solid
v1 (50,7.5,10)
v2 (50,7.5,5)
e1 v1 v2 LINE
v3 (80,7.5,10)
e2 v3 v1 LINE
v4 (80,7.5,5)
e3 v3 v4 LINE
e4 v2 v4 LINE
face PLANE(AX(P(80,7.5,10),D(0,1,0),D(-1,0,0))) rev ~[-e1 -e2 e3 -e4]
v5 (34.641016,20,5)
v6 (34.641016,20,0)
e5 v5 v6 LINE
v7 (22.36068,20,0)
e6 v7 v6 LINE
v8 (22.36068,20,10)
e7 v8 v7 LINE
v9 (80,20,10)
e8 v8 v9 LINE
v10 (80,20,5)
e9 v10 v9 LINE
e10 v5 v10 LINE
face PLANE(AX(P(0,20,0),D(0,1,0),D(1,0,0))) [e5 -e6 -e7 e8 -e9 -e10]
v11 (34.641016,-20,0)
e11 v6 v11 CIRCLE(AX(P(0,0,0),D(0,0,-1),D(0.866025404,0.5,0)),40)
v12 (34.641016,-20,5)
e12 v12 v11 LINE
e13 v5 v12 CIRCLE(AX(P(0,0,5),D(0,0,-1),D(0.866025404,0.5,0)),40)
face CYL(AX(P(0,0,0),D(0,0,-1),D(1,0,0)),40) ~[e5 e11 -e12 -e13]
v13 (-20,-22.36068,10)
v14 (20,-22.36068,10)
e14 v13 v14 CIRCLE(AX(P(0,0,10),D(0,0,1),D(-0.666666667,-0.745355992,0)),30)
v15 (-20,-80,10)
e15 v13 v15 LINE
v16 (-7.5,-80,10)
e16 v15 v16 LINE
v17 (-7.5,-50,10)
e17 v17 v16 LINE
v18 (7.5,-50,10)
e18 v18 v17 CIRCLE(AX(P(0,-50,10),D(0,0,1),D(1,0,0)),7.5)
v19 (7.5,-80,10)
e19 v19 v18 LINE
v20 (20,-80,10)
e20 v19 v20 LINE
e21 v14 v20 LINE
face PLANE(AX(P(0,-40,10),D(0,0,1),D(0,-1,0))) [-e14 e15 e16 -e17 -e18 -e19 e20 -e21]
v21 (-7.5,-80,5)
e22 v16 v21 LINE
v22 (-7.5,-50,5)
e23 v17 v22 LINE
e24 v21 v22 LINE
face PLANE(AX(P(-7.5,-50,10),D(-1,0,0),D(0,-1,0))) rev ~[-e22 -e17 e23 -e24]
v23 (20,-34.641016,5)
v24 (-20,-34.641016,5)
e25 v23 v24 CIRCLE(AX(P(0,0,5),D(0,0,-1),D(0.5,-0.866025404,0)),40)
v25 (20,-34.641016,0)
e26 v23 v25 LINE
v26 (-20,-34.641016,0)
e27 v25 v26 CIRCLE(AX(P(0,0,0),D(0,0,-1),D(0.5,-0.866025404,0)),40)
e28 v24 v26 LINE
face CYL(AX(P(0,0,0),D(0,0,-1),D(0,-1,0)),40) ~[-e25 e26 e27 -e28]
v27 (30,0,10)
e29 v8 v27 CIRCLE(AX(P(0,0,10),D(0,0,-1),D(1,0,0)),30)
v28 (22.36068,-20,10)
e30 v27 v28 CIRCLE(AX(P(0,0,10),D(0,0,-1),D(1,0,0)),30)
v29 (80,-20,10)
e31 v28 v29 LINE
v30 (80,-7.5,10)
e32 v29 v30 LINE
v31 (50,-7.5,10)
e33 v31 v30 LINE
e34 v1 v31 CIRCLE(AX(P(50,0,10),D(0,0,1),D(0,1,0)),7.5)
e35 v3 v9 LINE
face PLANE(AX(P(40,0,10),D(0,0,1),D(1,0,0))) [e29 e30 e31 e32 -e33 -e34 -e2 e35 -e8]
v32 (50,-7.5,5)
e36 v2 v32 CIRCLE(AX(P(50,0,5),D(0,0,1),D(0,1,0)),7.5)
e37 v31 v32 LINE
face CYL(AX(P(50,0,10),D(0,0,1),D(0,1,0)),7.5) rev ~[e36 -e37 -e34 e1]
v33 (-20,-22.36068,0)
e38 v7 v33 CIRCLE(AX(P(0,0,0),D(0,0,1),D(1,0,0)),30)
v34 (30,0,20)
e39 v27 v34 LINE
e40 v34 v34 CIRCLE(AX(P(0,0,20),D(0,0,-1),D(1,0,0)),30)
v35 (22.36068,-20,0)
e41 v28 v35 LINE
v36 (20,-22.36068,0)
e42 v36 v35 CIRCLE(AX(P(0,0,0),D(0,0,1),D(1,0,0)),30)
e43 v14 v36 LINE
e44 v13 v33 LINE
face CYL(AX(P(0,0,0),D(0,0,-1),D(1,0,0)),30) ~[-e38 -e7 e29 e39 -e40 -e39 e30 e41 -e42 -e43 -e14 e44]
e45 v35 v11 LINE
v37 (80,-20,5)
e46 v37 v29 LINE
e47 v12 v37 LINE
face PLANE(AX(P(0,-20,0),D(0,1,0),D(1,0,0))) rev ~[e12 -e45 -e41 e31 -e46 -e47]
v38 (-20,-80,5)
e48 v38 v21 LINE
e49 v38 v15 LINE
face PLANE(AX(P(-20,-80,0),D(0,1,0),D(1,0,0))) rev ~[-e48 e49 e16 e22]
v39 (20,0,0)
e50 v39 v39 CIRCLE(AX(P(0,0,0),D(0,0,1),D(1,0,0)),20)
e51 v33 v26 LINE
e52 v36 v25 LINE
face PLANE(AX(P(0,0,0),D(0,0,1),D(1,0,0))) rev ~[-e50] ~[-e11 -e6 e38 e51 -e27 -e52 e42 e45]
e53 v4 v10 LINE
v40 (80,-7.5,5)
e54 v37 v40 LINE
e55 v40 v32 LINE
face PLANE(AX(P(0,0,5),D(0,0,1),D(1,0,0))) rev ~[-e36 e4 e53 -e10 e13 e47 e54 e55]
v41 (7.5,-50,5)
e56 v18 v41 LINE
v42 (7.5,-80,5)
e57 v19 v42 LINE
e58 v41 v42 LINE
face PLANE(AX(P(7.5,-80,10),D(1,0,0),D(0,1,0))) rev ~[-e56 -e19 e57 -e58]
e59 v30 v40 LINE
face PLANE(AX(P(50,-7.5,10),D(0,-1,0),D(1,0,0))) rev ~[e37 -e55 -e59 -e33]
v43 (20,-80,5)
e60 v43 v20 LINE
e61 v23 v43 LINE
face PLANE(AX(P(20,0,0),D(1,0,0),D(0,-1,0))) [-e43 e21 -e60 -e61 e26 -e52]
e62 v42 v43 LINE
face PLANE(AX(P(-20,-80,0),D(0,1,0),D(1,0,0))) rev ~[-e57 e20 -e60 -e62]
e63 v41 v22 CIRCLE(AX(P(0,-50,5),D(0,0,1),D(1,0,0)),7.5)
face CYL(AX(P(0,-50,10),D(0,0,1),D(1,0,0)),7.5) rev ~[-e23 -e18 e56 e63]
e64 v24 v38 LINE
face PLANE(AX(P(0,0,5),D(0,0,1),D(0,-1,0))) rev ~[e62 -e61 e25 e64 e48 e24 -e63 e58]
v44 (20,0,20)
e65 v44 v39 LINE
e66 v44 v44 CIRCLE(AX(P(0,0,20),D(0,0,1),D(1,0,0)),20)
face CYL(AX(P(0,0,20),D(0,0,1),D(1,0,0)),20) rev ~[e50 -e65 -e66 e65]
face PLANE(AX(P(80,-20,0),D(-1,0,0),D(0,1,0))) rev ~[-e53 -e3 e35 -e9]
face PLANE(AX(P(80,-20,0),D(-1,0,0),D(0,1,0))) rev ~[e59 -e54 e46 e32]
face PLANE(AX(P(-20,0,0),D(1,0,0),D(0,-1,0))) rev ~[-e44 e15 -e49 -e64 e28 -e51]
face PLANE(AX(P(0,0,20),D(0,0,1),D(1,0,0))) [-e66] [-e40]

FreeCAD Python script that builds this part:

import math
import FreeCAD as App
import Part
import Sketcher
Q = App.Units.Quantity


def add_polygon(sketch, points):
    """Adds a closed chain of lines whose ends are joined by coincident constraints."""
    first, n = sketch.GeometryCount, len(points)
    for a, b in zip(points, points[1:] + points[:1]):
        sketch.addGeometry(Part.LineSegment(App.Vector(*a, 0), App.Vector(*b, 0)), False)
    for i in range(n):
        sketch.addConstraint(Sketcher.Constraint("Coincident", first + i, 2, first + (i + 1) % n, 1))

doc = App.newDocument("Part")
params = doc.addObject("Spreadsheet::Sheet", "Params")
for row, (alias, value) in enumerate([
    ("sketch1_diameter", "60 mm"),
    ("pad1_length", "20 mm"),
    ("sketch2_width", "80 mm"),
    ("sketch2_height", "40 mm"),
    ("pad2_length", "10 mm"),
    ("sketch3_radius", "7.5 mm"),
    ("sketch3_width", "30 mm"),
    ("sketch4_diameter", "180 mm"),
    ("sketch4_diameter2", "80 mm"),
    ("pocket2_length", "5 mm"),
    ("sketch5_diameter", "40 mm"),
], start=1):
    params.set(f"A{row}", alias)
    params.set(f"B{row}", "=" + value)
    params.setAlias(f"B{row}", alias)

body = doc.addObject("PartDesign::Body", "Body")

# Sketch on XY plane
sketch1 = body.newObject("Sketcher::SketchObject", "Sketch")
sketch1.AttachmentSupport = (doc.getObject("XY_Plane"), [""])
sketch1.MapMode = "FlatFace"
sketch1.addGeometry(Part.Circle(App.Vector(0, 0, 0), App.Vector(0, 0, 1), 30), False)
sketch1.addConstraint(Sketcher.Constraint("Coincident", 0, 3, -1, 1))
sketch1.addConstraint(Sketcher.Constraint("Diameter", 0, Q("60 mm")))
sketch1.setExpression("Constraints[1]", "Params.sketch1_diameter")
pad1 = body.newObject("PartDesign::Pad", "Pad")
pad1.Profile = sketch1
pad1.setExpression("Length", "Params.pad1_length")

# Sketch on XY plane
sketch2 = body.newObject("Sketcher::SketchObject", "Sketch001")
sketch2.AttachmentSupport = (doc.getObject("XY_Plane"), [""])
sketch2.MapMode = "FlatFace"
add_polygon(sketch2, [(0, 20), (0, -20), (80, -20), (80, 20)])  # lines 0-3
sketch2.addConstraint(Sketcher.Constraint("Vertical", 0))
sketch2.addConstraint(Sketcher.Constraint("Horizontal", 1))
sketch2.addConstraint(Sketcher.Constraint("Vertical", 2))
sketch2.addConstraint(Sketcher.Constraint("Horizontal", 3))
sketch2.addConstraint(Sketcher.Constraint("Symmetric", 0, 2, 3, 2, -1, 1))
sketch2.addConstraint(Sketcher.Constraint("DistanceX", 1, 1, 1, 2, Q("80 mm")))
sketch2.addConstraint(Sketcher.Constraint("DistanceY", 0, 2, 0, 1, Q("40 mm")))
sketch2.setExpression("Constraints[9]", "Params.sketch2_width")
sketch2.setExpression("Constraints[10]", "Params.sketch2_height")
pad2 = body.newObject("PartDesign::Pad", "Pad001")
pad2.Profile = sketch2
pad2.setExpression("Length", "Params.pad2_length")

# Sketch on XY plane
sketch3 = body.newObject("Sketcher::SketchObject", "Sketch002")
sketch3.AttachmentSupport = (doc.getObject("XY_Plane"), [""])
sketch3.MapMode = "FlatFace"
sketch3.AttachmentOffset = App.Placement(App.Vector(0, 0, 10), App.Rotation())
sketch3.addGeometry(Part.LineSegment(App.Vector(80, 8, 0), App.Vector(50, 8, 0)), False)
sketch3.addGeometry(Part.ArcOfCircle(Part.Circle(App.Vector(50, 0, 0), App.Vector(0, 0, 1), 8), math.radians(90), math.radians(270)), False)
sketch3.addGeometry(Part.LineSegment(App.Vector(50, -8, 0), App.Vector(80, -8, 0)), False)
sketch3.addGeometry(Part.LineSegment(App.Vector(80, -8, 0), App.Vector(80, 8, 0)), False)
sketch3.addConstraint(Sketcher.Constraint("Tangent", 0, 2, 1, 1))
sketch3.addConstraint(Sketcher.Constraint("Tangent", 1, 2, 2, 1))
sketch3.addConstraint(Sketcher.Constraint("Coincident", 2, 2, 3, 1))
sketch3.addConstraint(Sketcher.Constraint("Coincident", 3, 2, 0, 1))
sketch3.addConstraint(Sketcher.Constraint("Horizontal", 0))
sketch3.addConstraint(Sketcher.Constraint("Horizontal", 2))
sketch3.addConstraint(Sketcher.Constraint("Vertical", 3))
sketch3.addConstraint(Sketcher.Constraint("PointOnObject", 1, 3, -1))
sketch3.addConstraint(Sketcher.Constraint("Radius", 1, Q("7.5 mm")))
sketch3.addConstraint(Sketcher.Constraint("DistanceX", 0, 2, 0, 1, Q("30 mm")))
sketch3.addConstraint(Sketcher.Constraint("DistanceX", -1, 1, 1, 3, Q("50 mm")))
sketch3.setExpression("Constraints[8]", "Params.sketch3_radius")
sketch3.setExpression("Constraints[9]", "Params.sketch3_width")
pocket1 = body.newObject("PartDesign::Pocket", "Pocket")
pocket1.Profile = sketch3
pocket1.Type = "ThroughAll"

# Sketch on XY plane
sketch4 = body.newObject("Sketcher::SketchObject", "Sketch003")
sketch4.AttachmentSupport = (doc.getObject("XY_Plane"), [""])
sketch4.MapMode = "FlatFace"
sketch4.addGeometry(Part.Circle(App.Vector(0, 0, 0), App.Vector(0, 0, 1), 90), False)
sketch4.addGeometry(Part.Circle(App.Vector(0, 0, 0), App.Vector(0, 0, 1), 40), False)
sketch4.addConstraint(Sketcher.Constraint("Coincident", 0, 3, -1, 1))
sketch4.addConstraint(Sketcher.Constraint("Coincident", 1, 3, -1, 1))
sketch4.addConstraint(Sketcher.Constraint("Diameter", 0, Q("180 mm")))
sketch4.addConstraint(Sketcher.Constraint("Diameter", 1, Q("80 mm")))
sketch4.setExpression("Constraints[2]", "Params.sketch4_diameter")
sketch4.setExpression("Constraints[3]", "Params.sketch4_diameter2")
pocket2 = body.newObject("PartDesign::Pocket", "Pocket001")
pocket2.Profile = sketch4
pocket2.setExpression("Length", "Params.pocket2_length")
pocket2.Reversed = True
body2 = doc.addObject("PartDesign::Body", "Body001")
doc.recompute()

body2.BaseFeature = body
doc.recompute()

body.Placement = App.Placement(App.Vector(0, 0, 0), App.Rotation(App.Vector(0, 0, -1), 90))
boolean = body2.newObject("PartDesign::Boolean", "Boolean")
boolean.Type = "Fuse"
boolean.addObjects([body])

# Sketch on XY plane
sketch5 = body2.newObject("Sketcher::SketchObject", "Sketch004")
sketch5.AttachmentSupport = (doc.getObject("XY_Plane001"), [""])
sketch5.MapMode = "FlatFace"
sketch5.AttachmentOffset = App.Placement(App.Vector(0, 0, 20), App.Rotation())
sketch5.addGeometry(Part.Circle(App.Vector(0, 0, 0), App.Vector(0, 0, 1), 20), False)
sketch5.addConstraint(Sketcher.Constraint("Coincident", 0, 3, -1, 1))
sketch5.addConstraint(Sketcher.Constraint("Diameter", 0, Q("40 mm")))
sketch5.setExpression("Constraints[1]", "Params.sketch5_diameter")
pocket3 = body2.newObject("PartDesign::Pocket", "Pocket002")
pocket3.Profile = sketch5
pocket3.Type = "ThroughAll"

doc.recompute()
